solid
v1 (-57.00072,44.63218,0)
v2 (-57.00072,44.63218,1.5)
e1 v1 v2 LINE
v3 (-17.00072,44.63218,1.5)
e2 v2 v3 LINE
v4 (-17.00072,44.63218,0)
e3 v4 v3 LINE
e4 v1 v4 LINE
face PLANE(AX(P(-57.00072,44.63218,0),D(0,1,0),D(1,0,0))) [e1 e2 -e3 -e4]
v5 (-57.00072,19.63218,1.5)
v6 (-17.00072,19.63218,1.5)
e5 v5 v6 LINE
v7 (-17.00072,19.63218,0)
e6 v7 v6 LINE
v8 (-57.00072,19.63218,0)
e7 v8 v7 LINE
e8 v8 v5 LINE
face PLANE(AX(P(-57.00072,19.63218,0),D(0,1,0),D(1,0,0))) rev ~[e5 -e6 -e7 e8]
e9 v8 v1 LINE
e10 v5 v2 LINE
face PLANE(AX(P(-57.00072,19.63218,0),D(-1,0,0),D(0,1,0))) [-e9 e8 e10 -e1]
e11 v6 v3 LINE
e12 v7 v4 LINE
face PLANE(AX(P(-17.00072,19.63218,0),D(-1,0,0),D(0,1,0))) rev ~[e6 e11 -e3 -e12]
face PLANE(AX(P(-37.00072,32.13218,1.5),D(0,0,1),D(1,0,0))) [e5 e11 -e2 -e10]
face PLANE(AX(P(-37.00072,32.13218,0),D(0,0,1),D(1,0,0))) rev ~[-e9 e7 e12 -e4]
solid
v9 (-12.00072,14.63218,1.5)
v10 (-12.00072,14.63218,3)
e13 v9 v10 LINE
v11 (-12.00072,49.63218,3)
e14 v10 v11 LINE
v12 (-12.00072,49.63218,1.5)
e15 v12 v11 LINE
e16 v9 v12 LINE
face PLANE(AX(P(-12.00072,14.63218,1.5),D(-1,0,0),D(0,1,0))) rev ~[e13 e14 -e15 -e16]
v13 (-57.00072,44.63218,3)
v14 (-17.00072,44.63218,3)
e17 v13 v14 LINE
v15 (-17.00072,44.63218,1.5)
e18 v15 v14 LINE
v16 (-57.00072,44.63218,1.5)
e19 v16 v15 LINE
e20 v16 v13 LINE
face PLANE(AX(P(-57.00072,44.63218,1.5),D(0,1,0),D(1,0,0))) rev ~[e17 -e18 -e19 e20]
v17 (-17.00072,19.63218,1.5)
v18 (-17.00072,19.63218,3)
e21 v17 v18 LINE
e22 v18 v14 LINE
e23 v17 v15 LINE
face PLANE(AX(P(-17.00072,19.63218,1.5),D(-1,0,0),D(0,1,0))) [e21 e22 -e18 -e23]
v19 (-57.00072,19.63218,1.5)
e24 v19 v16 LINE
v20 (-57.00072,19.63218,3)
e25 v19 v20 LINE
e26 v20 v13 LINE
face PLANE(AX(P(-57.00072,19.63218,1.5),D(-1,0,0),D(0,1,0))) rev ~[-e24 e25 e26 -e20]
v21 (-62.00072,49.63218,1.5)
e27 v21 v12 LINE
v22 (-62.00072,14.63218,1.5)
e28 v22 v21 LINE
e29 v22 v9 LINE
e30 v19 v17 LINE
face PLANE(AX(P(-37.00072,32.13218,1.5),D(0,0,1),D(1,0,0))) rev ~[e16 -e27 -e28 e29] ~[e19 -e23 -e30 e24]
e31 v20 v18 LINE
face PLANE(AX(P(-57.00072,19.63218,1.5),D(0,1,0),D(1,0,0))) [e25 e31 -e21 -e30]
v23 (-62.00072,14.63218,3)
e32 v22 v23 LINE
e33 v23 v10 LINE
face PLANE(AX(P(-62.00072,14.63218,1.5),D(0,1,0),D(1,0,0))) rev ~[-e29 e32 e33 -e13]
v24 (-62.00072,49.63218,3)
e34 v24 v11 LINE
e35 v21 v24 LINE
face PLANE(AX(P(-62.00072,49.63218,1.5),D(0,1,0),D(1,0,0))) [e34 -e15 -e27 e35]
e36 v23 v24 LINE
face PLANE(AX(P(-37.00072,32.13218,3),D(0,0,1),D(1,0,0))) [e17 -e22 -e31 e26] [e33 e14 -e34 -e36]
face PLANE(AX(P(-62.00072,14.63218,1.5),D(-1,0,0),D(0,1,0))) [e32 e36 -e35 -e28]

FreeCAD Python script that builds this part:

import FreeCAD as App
import Part
import Sketcher

doc = App.newDocument("Part")
body = doc.addObject("PartDesign::Body", "Body")

sketch1 = body.newObject("Sketcher::SketchObject", "Sketch")
sketch1.AttachmentSupport = (doc.getObject("XY_Plane"), [""])
sketch1.MapMode = "FlatFace"
sketch1.addGeometry([
    Part.LineSegment(App.Vector(-57, 45, 0), App.Vector(-57, 20, 0)),
    Part.LineSegment(App.Vector(-57, 20, 0), App.Vector(-17, 20, 0)),
    Part.LineSegment(App.Vector(-17, 20, 0), App.Vector(-17, 45, 0)),
    Part.LineSegment(App.Vector(-17, 45, 0), App.Vector(-57, 45, 0)),
], False)
sketch1.addConstraint([
    Sketcher.Constraint("Coincident", 0, 2, 1, 1),
    Sketcher.Constraint("Coincident", 1, 2, 2, 1),
    Sketcher.Constraint("Coincident", 2, 2, 3, 1),
    Sketcher.Constraint("Coincident", 3, 2, 0, 1),
    Sketcher.Constraint("Vertical", 0),
    Sketcher.Constraint("Horizontal", 1),
    Sketcher.Constraint("Vertical", 2),
    Sketcher.Constraint("Horizontal", 3),
    Sketcher.Constraint("DistanceX", 1, 1, 1, 2, 40.0),
    Sketcher.Constraint("DistanceY", 0, 2, 0, 1, 25.0),
    Sketcher.Constraint("DistanceX", 0, 2, -1, 1, 57.00072),
    Sketcher.Constraint("DistanceY", -1, 1, 0, 2, 19.63218),
])
pad1 = body.newObject("PartDesign::Pad", "Pad")
pad1.Profile = sketch1
pad1.Length = 1.5
body2 = doc.addObject("PartDesign::Body", "Body001")

sketch2 = body2.newObject("Sketcher::SketchObject", "Sketch001")
sketch2.AttachmentSupport = (doc.getObject("XY_Plane001"), [""])
sketch2.MapMode = "FlatFace"
sketch2.AttachmentOffset = App.Placement(App.Vector(0, 0, 1.5), App.Rotation())
sketch2.addGeometry([
    Part.LineSegment(App.Vector(-62, 50, 0), App.Vector(-62, 15, 0)),
    Part.LineSegment(App.Vector(-62, 15, 0), App.Vector(-12, 15, 0)),
    Part.LineSegment(App.Vector(-12, 15, 0), App.Vector(-12, 50, 0)),
    Part.LineSegment(App.Vector(-12, 50, 0), App.Vector(-62, 50, 0)),
    Part.LineSegment(App.Vector(-17, 20, 0), App.Vector(-57, 20, 0)),
    Part.LineSegment(App.Vector(-57, 20, 0), App.Vector(-57, 45, 0)),
    Part.LineSegment(App.Vector(-57, 45, 0), App.Vector(-17, 45, 0)),
    Part.LineSegment(App.Vector(-17, 45, 0), App.Vector(-17, 20, 0)),
], False)
sketch2.addConstraint([
    Sketcher.Constraint("Coincident", 0, 2, 1, 1),
    Sketcher.Constraint("Coincident", 1, 2, 2, 1),
    Sketcher.Constraint("Coincident", 2, 2, 3, 1),
    Sketcher.Constraint("Coincident", 3, 2, 0, 1),
    Sketcher.Constraint("Coincident", 4, 2, 5, 1),
    Sketcher.Constraint("Coincident", 5, 2, 6, 1),
    Sketcher.Constraint("Coincident", 6, 2, 7, 1),
    Sketcher.Constraint("Coincident", 7, 2, 4, 1),
    Sketcher.Constraint("Vertical", 0),
    Sketcher.Constraint("Horizontal", 1),
    Sketcher.Constraint("Vertical", 2),
    Sketcher.Constraint("Horizontal", 3),
    Sketcher.Constraint("Horizontal", 4),
    Sketcher.Constraint("Vertical", 5),
    Sketcher.Constraint("Horizontal", 6),
    Sketcher.Constraint("Vertical", 7),
    Sketcher.Constraint("DistanceX", 1, 1, 1, 2, 50.0),
    Sketcher.Constraint("DistanceX", 4, 2, 4, 1, 40.0),
    Sketcher.Constraint("DistanceY", 0, 2, 0, 1, 35.0),
    Sketcher.Constraint("DistanceY", 5, 1, 5, 2, 25.0),
    Sketcher.Constraint("DistanceX", 0, 2, 4, 2, 5.0),
    Sketcher.Constraint("DistanceY", 0, 2, 4, 2, 5.0),
    Sketcher.Constraint("DistanceX", 0, 2, -1, 1, 62.00072),
    Sketcher.Constraint("DistanceY", -1, 1, 0, 2, 14.63218),
])
pad2 = body2.newObject("PartDesign::Pad", "Pad001")
pad2.Profile = sketch2
pad2.Length = 1.5

doc.recompute()
